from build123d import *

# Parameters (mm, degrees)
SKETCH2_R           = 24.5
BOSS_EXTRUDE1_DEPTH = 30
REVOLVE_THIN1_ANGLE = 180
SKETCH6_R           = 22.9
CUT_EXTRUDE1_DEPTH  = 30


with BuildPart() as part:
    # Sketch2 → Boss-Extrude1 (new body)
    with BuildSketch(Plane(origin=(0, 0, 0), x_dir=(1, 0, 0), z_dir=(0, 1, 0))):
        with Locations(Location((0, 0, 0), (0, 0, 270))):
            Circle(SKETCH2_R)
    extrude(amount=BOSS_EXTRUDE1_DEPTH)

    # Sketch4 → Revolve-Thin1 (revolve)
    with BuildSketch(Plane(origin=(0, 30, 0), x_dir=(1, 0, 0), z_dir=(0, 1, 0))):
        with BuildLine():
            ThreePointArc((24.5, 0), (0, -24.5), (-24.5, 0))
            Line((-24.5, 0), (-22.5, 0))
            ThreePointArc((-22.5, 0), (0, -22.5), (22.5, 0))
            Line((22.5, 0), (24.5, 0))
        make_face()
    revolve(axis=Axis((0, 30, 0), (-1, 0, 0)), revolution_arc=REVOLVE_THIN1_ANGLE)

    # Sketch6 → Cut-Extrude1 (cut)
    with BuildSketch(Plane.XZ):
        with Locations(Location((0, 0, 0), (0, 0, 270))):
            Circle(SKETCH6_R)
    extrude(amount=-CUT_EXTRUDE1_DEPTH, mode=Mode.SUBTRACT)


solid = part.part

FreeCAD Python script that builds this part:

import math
import FreeCAD as App
import Part
import Sketcher

V = App.Vector
Q = App.Units.Quantity

doc = App.newDocument("Part")
params = doc.addObject("Spreadsheet::Sheet", "Params")
for row, (alias, value) in enumerate([
    ("sketch1_diameter", "49 mm"),
    ("pad1_length", "30 mm"),
    ("sketch2_radius", "24.5 mm"),
    ("sketch2_radius2", "22.5 mm"),
    ("revolution_angle", "180 deg"),
    ("sketch3_diameter", "45.8 mm"),
    ("pocket1_length", "30 mm"),
], start=1):
    params.set(f"A{row}", alias)
    params.set(f"B{row}", "=" + value)
    params.setAlias(f"B{row}", alias)

body = doc.addObject("PartDesign::Body", "Body")

# Sketch on XZ plane
sketch1 = body.newObject("Sketcher::SketchObject", "Sketch")
sketch1.AttachmentSupport = (doc.getObject("XZ_Plane"), [""])
sketch1.MapMode = "FlatFace"
sketch1.addGeometry(Part.Circle(V(0, 0, 0), V(0, 0, 1), 24), False)
sketch1.addConstraint([
    Sketcher.Constraint("Coincident", 0, 3, -1, 1),
    Sketcher.Constraint("Diameter", 0, Q("49 mm")),
])
sketch1.setExpression("Constraints[1]", "Params.sketch1_diameter")
pad1 = body.newObject("PartDesign::Pad", "Pad")
pad1.Profile = sketch1
pad1.setExpression("Length", "Params.pad1_length")
pad1.Reversed = True

# Sketch on XZ plane
sketch2 = body.newObject("Sketcher::SketchObject", "Sketch001")
sketch2.AttachmentSupport = (doc.getObject("XZ_Plane"), [""])
sketch2.MapMode = "FlatFace"
sketch2.AttachmentOffset = App.Placement(V(0, 0, -30), App.Rotation())
sketch2.addGeometry([
    Part.ArcOfCircle(Part.Circle(V(0, 0, 0), V(0, 0, 1), 24.5), math.radians(0), math.radians(180)),
    Part.LineSegment(V(24.5, 0, 0), V(22.5, 0, 0)),
    Part.ArcOfCircle(Part.Circle(V(0, 0, 0), V(0, 0, 1), 22.5), math.radians(0), math.radians(180)),
    Part.LineSegment(V(-22.5, 0, 0), V(-24.5, 0, 0)),
], False)
sketch2.addConstraint([
    Sketcher.Constraint("Coincident", 0, 1, 1, 1),
    Sketcher.Constraint("Coincident", 1, 2, 2, 1),
    Sketcher.Constraint("Coincident", 2, 2, 3, 1),
    Sketcher.Constraint("Coincident", 3, 2, 0, 2),
    Sketcher.Constraint("Horizontal", 1),
    Sketcher.Constraint("Horizontal", 3),
    Sketcher.Constraint("Coincident", 0, 3, -1, 1),
    Sketcher.Constraint("Coincident", 2, 3, -1, 1),
    Sketcher.Constraint("PointOnObject", 0, 1, -1),
    Sketcher.Constraint("PointOnObject", 2, 2, -1),
    Sketcher.Constraint("Radius", 0, Q("24.5 mm")),
    Sketcher.Constraint("Radius", 2, Q("22.5 mm")),
])
sketch2.setExpression("Constraints[10]", "Params.sketch2_radius")
sketch2.setExpression("Constraints[11]", "Params.sketch2_radius2")
revolution = body.newObject("PartDesign::Revolution", "Revolution")
revolution.Profile = sketch2
revolution.ReferenceAxis = (sketch2, ["H_Axis"])
revolution.setExpression("Angle", "Params.revolution_angle")
revolution.Reversed = True

# Sketch on XZ plane
sketch3 = body.newObject("Sketcher::SketchObject", "Sketch002")
sketch3.AttachmentSupport = (doc.getObject("XZ_Plane"), [""])
sketch3.MapMode = "FlatFace"
sketch3.addGeometry(Part.Circle(V(0, 0, 0), V(0, 0, 1), 23), False)
sketch3.addConstraint([
    Sketcher.Constraint("Coincident", 0, 3, -1, 1),
    Sketcher.Constraint("Diameter", 0, Q("45.8 mm")),
])
sketch3.setExpression("Constraints[1]", "Params.sketch3_diameter")
pocket1 = body.newObject("PartDesign::Pocket", "Pocket")
pocket1.Profile = sketch3
pocket1.setExpression("Length", "Params.pocket1_length")

doc.recompute()
